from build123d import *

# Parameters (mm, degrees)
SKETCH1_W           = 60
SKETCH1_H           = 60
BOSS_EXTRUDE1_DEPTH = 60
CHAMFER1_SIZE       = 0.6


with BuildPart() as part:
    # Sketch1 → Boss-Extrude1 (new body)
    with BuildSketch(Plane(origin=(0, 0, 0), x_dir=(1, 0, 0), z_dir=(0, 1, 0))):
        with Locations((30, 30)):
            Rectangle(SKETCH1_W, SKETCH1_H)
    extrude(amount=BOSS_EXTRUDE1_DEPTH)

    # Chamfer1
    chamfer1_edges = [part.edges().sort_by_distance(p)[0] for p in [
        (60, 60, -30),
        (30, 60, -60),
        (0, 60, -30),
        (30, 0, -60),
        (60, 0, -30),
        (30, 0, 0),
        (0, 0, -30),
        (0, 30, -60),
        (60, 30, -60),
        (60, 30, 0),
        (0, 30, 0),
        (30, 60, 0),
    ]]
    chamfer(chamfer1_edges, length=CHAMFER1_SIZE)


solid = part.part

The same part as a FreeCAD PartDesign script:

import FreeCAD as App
import Part
import Sketcher
from FreeCAD import Vector

doc = App.newDocument("Part")
body = doc.addObject("PartDesign::Body", "Body")

sketch1 = body.newObject("Sketcher::SketchObject", "Sketch")
sketch1.AttachmentSupport = (doc.getObject("XZ_Plane"), [""])
sketch1.MapMode = "FlatFace"
sketch1.addGeometry([
    Part.LineSegment(Vector(0, -60, 0), Vector(0, 0, 0)),
    Part.LineSegment(Vector(0, 0, 0), Vector(60, 0, 0)),
    Part.LineSegment(Vector(60, 0, 0), Vector(60, -60, 0)),
    Part.LineSegment(Vector(60, -60, 0), Vector(0, -60, 0)),
], False)
sketch1.addConstraint([
    Sketcher.Constraint("Coincident", 0, 2, 1, 1),
    Sketcher.Constraint("Coincident", 1, 2, 2, 1),
    Sketcher.Constraint("Coincident", 2, 2, 3, 1),
    Sketcher.Constraint("Coincident", 3, 2, 0, 1),
    Sketcher.Constraint("Vertical", 0),
    Sketcher.Constraint("Horizontal", 1),
    Sketcher.Constraint("Vertical", 2),
    Sketcher.Constraint("Horizontal", 3),
    Sketcher.Constraint("Coincident", 0, 2, -1, 1),
    Sketcher.Constraint("Equal", 3, 0),
    Sketcher.Constraint("DistanceX", 1, 1, 1, 2, 60.0),
])
pad1 = body.newObject("PartDesign::Pad", "Pad")
pad1.Profile = sketch1
pad1.Length = 60
pad1.Reversed = True
doc.recompute()

chamfer = body.newObject("PartDesign::Chamfer", "Chamfer")
chamfer.Base = (pad1, ["Edge1"])
chamfer.UseAllEdges = True
chamfer.Size = 0.6

doc.recompute()
